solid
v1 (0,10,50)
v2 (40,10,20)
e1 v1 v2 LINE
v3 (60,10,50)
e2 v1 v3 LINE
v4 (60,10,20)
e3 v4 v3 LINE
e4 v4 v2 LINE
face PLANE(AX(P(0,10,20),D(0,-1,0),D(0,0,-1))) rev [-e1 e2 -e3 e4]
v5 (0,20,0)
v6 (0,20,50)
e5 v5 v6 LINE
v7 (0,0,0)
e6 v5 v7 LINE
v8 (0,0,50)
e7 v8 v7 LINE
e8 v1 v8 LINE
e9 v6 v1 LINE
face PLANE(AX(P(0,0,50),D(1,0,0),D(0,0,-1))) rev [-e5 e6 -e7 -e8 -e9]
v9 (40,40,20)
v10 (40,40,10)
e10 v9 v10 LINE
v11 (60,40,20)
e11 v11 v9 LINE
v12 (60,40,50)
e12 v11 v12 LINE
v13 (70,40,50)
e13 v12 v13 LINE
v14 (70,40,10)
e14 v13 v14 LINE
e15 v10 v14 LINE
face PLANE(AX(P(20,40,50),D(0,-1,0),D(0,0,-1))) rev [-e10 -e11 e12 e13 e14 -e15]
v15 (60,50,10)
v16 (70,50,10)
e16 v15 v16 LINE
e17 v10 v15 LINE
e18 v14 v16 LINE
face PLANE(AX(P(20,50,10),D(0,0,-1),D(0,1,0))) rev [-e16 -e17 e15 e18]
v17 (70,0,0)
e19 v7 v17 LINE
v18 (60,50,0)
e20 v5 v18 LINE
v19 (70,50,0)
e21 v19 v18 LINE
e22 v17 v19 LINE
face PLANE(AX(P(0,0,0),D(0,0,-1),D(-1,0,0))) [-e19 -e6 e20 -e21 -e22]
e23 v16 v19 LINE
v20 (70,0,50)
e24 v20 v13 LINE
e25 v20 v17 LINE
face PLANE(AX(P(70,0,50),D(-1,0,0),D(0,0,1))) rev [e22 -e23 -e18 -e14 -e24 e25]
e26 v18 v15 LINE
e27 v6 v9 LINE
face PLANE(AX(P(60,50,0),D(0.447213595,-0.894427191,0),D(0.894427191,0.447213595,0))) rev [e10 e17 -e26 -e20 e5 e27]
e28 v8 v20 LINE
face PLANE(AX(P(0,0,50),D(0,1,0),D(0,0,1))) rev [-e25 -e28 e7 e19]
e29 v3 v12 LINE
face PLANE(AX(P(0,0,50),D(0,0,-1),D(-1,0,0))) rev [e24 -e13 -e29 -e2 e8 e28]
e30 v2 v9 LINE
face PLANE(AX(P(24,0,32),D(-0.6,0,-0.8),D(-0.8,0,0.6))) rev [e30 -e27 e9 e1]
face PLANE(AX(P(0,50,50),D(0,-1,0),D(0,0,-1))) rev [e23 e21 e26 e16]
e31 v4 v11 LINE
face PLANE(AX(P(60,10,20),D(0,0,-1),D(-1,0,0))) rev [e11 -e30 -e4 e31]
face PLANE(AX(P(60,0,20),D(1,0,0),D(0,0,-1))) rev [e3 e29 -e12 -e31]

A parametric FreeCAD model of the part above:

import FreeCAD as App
import Part
import Sketcher
from FreeCAD import Vector


def add_polygon(sketch, points):
    """Adds a closed chain of lines whose ends are joined by coincident constraints."""
    first, n = sketch.GeometryCount, len(points)
    for a, b in zip(points, points[1:] + points[:1]):
        sketch.addGeometry(Part.LineSegment(App.Vector(*a, 0), App.Vector(*b, 0)), False)
    for i in range(n):
        sketch.addConstraint(Sketcher.Constraint("Coincident", first + i, 2, first + (i + 1) % n, 1))

doc = App.newDocument("Part")
body = doc.addObject("PartDesign::Body", "Body")
body.AllowCompound = True

sketch1 = body.newObject("Sketcher::SketchObject", "Sketch")
sketch1.AttachmentSupport = (doc.getObject("XY_Plane"), [""])
sketch1.MapMode = "FlatFace"
add_polygon(sketch1, [(0, 50), (0, 0), (70, 0), (70, 50)])
sketch1.addConstraint(Sketcher.Constraint("Vertical", 0))
sketch1.addConstraint(Sketcher.Constraint("Horizontal", 1))
sketch1.addConstraint(Sketcher.Constraint("Vertical", 2))
sketch1.addConstraint(Sketcher.Constraint("Horizontal", 3))
sketch1.addConstraint(Sketcher.Constraint("Coincident", 0, 2, -1, 1))
sketch1.addConstraint(Sketcher.Constraint("DistanceX", 1, 1, 1, 2, 70.0))
sketch1.addConstraint(Sketcher.Constraint("DistanceY", 0, 2, 0, 1, 50.0))
pad1 = body.newObject("PartDesign::Pad", "Pad")
pad1.Profile = sketch1
pad1.Length = 50

sketch2 = body.newObject("Sketcher::SketchObject", "Sketch001")
sketch2.AttachmentSupport = (doc.getObject("XY_Plane"), [""])
sketch2.MapMode = "FlatFace"
sketch2.AttachmentOffset = App.Placement(Vector(0, 0, 50), App.Rotation())
add_polygon(sketch2, [(60, 50), (0, 50), (0, 20)])
sketch2.addConstraint(Sketcher.Constraint("Horizontal", 0))
sketch2.addConstraint(Sketcher.Constraint("Vertical", 1))
sketch2.addConstraint(Sketcher.Constraint("PointOnObject", 0, 2, -2))
sketch2.addConstraint(Sketcher.Constraint("DistanceX", 0, 2, 0, 1, 60.0))
sketch2.addConstraint(Sketcher.Constraint("DistanceY", 1, 2, 1, 1, 30.0))
sketch2.addConstraint(Sketcher.Constraint("DistanceY", -1, 1, 0, 2, 50.0))
pocket1 = body.newObject("PartDesign::Pocket", "Pocket")
pocket1.Profile = sketch2
pocket1.Length = 50

sketch3 = body.newObject("Sketcher::SketchObject", "Sketch002")
sketch3.AttachmentSupport = (doc.getObject("YZ_Plane"), [""])
sketch3.MapMode = "FlatFace"
sketch3.AttachmentOffset = App.Placement(Vector(0, 0, 70), App.Rotation())
add_polygon(sketch3, [(50, 50), (40, 50), (40, 10), (50, 10)])
sketch3.addConstraint(Sketcher.Constraint("Horizontal", 0))
sketch3.addConstraint(Sketcher.Constraint("Vertical", 1))
sketch3.addConstraint(Sketcher.Constraint("Horizontal", 2))
sketch3.addConstraint(Sketcher.Constraint("Vertical", 3))
sketch3.addConstraint(Sketcher.Constraint("DistanceX", 0, 2, 0, 1, 10.0))
sketch3.addConstraint(Sketcher.Constraint("DistanceY", 1, 2, 1, 1, 40.0))
sketch3.addConstraint(Sketcher.Constraint("DistanceX", -1, 1, 0, 2, 40.0))
sketch3.addConstraint(Sketcher.Constraint("DistanceY", -1, 1, 0, 2, 50.0))
pocket2 = body.newObject("PartDesign::Pocket", "Pocket001")
pocket2.Profile = sketch3
pocket2.Length = 50

sketch4 = body.newObject("Sketcher::SketchObject", "Sketch003")
sketch4.AttachmentSupport = (doc.getObject("XY_Plane"), [""])
sketch4.MapMode = "FlatFace"
sketch4.AttachmentOffset = App.Placement(Vector(0, 0, 50), App.Rotation())
add_polygon(sketch4, [(60, 10), (60, 40), (40, 40), (0, 20), (0, 10)])
sketch4.addConstraint(Sketcher.Constraint("Vertical", 0))
sketch4.addConstraint(Sketcher.Constraint("Horizontal", 1))
sketch4.addConstraint(Sketcher.Constraint("Vertical", 3))
sketch4.addConstraint(Sketcher.Constraint("Horizontal", 4))
sketch4.addConstraint(Sketcher.Constraint("PointOnObject", 2, 2, -2))
sketch4.addConstraint(Sketcher.Constraint("DistanceX", 1, 2, 1, 1, 20.0))
sketch4.addConstraint(Sketcher.Constraint("DistanceX", 4, 1, 4, 2, 60.0))
sketch4.addConstraint(Sketcher.Constraint("DistanceY", 0, 1, 0, 2, 30.0))
sketch4.addConstraint(Sketcher.Constraint("DistanceY", 3, 2, 3, 1, 10.0))
sketch4.addConstraint(Sketcher.Constraint("DistanceY", -1, 1, 0, 2, 40.0))
pocket3 = body.newObject("PartDesign::Pocket", "Pocket002")
pocket3.Profile = sketch4
pocket3.Length = 30

sketch5 = body.newObject("Sketcher::SketchObject", "Sketch004")
sketch5.Placement = App.Placement(Vector(-8, 16, 0), App.Rotation(Vector(0.894427191, 0.447213595, 0), Vector(0, 0, -1), Vector(-0.447213595, 0.894427191, 0), "ZXY"))
add_polygon(sketch5, [(9, -20), (9, -40), (54, -20)])
sketch5.addConstraint(Sketcher.Constraint("Vertical", 0))
sketch5.addConstraint(Sketcher.Constraint("Horizontal", 2))
sketch5.addConstraint(Sketcher.Constraint("DistanceY", 0, 2, 0, 1, 20.0))
sketch5.addConstraint(Sketcher.Constraint("DistanceY", 0, 2, -1, 1, 40.0))
sketch5.addConstraint(Sketcher.Constraint("DistanceX", 2, 2, 2, 1, 44.72136))
sketch5.addConstraint(Sketcher.Constraint("DistanceX", -1, 1, 0, 2, 8.944272))
pad2 = body.newObject("PartDesign::Pad", "Pad001")
pad2.Profile = sketch5
pad2.Length = 30
pad2.Reversed = True

sketch6 = body.newObject("Sketcher::SketchObject", "Sketch005")
sketch6.AttachmentSupport = (doc.getObject("YZ_Plane"), [""])
sketch6.MapMode = "FlatFace"
add_polygon(sketch6, [(20, 20), (10, 20), (10, 40), (20, 40)])
sketch6.addConstraint(Sketcher.Constraint("Horizontal", 0))
sketch6.addConstraint(Sketcher.Constraint("Vertical", 1))
sketch6.addConstraint(Sketcher.Constraint("Horizontal", 2))
sketch6.addConstraint(Sketcher.Constraint("Vertical", 3))
sketch6.addConstraint(Sketcher.Constraint("DistanceX", 0, 2, 0, 1, 10.0))
sketch6.addConstraint(Sketcher.Constraint("DistanceY", 1, 1, 1, 2, 20.0))
sketch6.addConstraint(Sketcher.Constraint("DistanceX", -1, 1, 0, 2, 10.0))
sketch6.addConstraint(Sketcher.Constraint("DistanceY", -1, 1, 0, 2, 20.0))
pad3 = body.newObject("PartDesign::Pad", "Pad002")
pad3.Profile = sketch6
pad3.Length = 5

sketch7 = body.newObject("Sketcher::SketchObject", "Sketch006")
sketch7.AttachmentSupport = (doc.getObject("XZ_Plane"), [""])
sketch7.MapMode = "FlatFace"
add_polygon(sketch7, [(27, 33), (10, 40), (10, 20), (27, 20)])
sketch7.addConstraint(Sketcher.Constraint("Vertical", 1))
sketch7.addConstraint(Sketcher.Constraint("Horizontal", 2))
sketch7.addConstraint(Sketcher.Constraint("Vertical", 3))
sketch7.addConstraint(Sketcher.Constraint("DistanceY", 1, 2, 1, 1, 20.0))
sketch7.addConstraint(Sketcher.Constraint("DistanceX", -1, 1, 0, 2, 10.0))
sketch7.addConstraint(Sketcher.Constraint("DistanceY", -1, 1, 0, 2, 40.0))
sketch7.addConstraint(Sketcher.Constraint("DistanceX", 2, 1, 2, 2, 17.082039))
sketch7.addConstraint(Sketcher.Constraint("Distance", 0, 18.397919))
pocket4 = body.newObject("PartDesign::Pocket", "Pocket003")
pocket4.Profile = sketch7
pocket4.Length = 5
pocket4.Reversed = True

sketch8 = body.newObject("Sketcher::SketchObject", "Sketch007")
sketch8.AttachmentSupport = (doc.getObject("XZ_Plane"), [""])
sketch8.MapMode = "FlatFace"
add_polygon(sketch8, [(70, 0), (70, 50), (0, 50), (0, 0)])
sketch8.addConstraint(Sketcher.Constraint("Vertical", 0))
sketch8.addConstraint(Sketcher.Constraint("Horizontal", 1))
sketch8.addConstraint(Sketcher.Constraint("Vertical", 2))
sketch8.addConstraint(Sketcher.Constraint("Horizontal", 3))
sketch8.addConstraint(Sketcher.Constraint("Coincident", 2, 2, -1, 1))
sketch8.addConstraint(Sketcher.Constraint("DistanceX", 1, 2, 1, 1, 70.0))
sketch8.addConstraint(Sketcher.Constraint("DistanceY", 0, 1, 0, 2, 50.0))
pocket5 = body.newObject("PartDesign::Pocket", "Pocket004")
pocket5.Profile = sketch8
pocket5.Length = 19
pocket5.Reversed = True

sketch9 = body.newObject("Sketcher::SketchObject", "Sketch008")
sketch9.Placement = App.Placement(Vector(14.666667, 7.333333, 36.666667), App.Rotation(Vector(0.930949336, -0.071611487, -0.358057437), Vector(0, 0.980580675, -0.196116135), Vector(0.365148372, 0.182574186, 0.912870929), "ZXY"))
add_polygon(sketch9, [(-10, 12), (-16, 12), (-17, 4), (-10, 2)])
sketch9.addConstraint(Sketcher.Constraint("Vertical", 3))
sketch9.addConstraint(Sketcher.Constraint("DistanceY", 3, 1, 3, 2, 10.198039))
sketch9.addConstraint(Sketcher.Constraint("DistanceY", -1, 1, 3, 2, 12.1592))
sketch9.addConstraint(Sketcher.Constraint("Distance", 1, 8.191788))
sketch9.addConstraint(Sketcher.Constraint("DistanceY", -1, 1, 0, 2, 11.766968))
sketch9.addConstraint(Sketcher.Constraint("DistanceX", 1, 2, -1, 1, 16.527762))
sketch9.addConstraint(Sketcher.Constraint("DistanceX", 0, 2, 2, 2, 5.370862))
sketch9.addConstraint(Sketcher.Constraint("Distance", 2, 6.361948))
pocket6 = body.newObject("PartDesign::Pocket", "Pocket005")
pocket6.Profile = sketch9
pocket6.Length = 19
pocket6.Reversed = True

sketch10 = body.newObject("Sketcher::SketchObject", "Sketch009")
sketch10.Placement = App.Placement(Vector(20, 0, 40), App.Rotation(Vector(0.894427191, 0, -0.447213595), Vector(0, 1, 0), Vector(0.447213595, 0, 0.894427191), "ZXY"))
add_polygon(sketch10, [(-22, 40), (-22, 10), (45, 10), (45, 40)])
sketch10.addConstraint(Sketcher.Constraint("Vertical", 0))
sketch10.addConstraint(Sketcher.Constraint("Horizontal", 1))
sketch10.addConstraint(Sketcher.Constraint("Vertical", 2))
sketch10.addConstraint(Sketcher.Constraint("Horizontal", 3))
sketch10.addConstraint(Sketcher.Constraint("DistanceY", 0, 2, 0, 1, 30.0))
sketch10.addConstraint(Sketcher.Constraint("DistanceY", -1, 1, 0, 2, 10.0))
sketch10.addConstraint(Sketcher.Constraint("DistanceX", 1, 1, 1, 2, 67.082039))
sketch10.addConstraint(Sketcher.Constraint("DistanceX", 0, 2, -1, 1, 22.36068))
pad4 = body.newObject("PartDesign::Pad", "Pad003")
pad4.Profile = sketch10
pad4.Length = 10
pad4.Reversed = True

sketch11 = body.newObject("Sketcher::SketchObject", "Sketch010")
sketch11.AttachmentSupport = (doc.getObject("YZ_Plane"), [""])
sketch11.MapMode = "FlatFace"
add_polygon(sketch11, [(20, 0), (0, 0), (0, 50), (20, 50)])
sketch11.addConstraint(Sketcher.Constraint("Horizontal", 0))
sketch11.addConstraint(Sketcher.Constraint("Vertical", 1))
sketch11.addConstraint(Sketcher.Constraint("Horizontal", 2))
sketch11.addConstraint(Sketcher.Constraint("Vertical", 3))
sketch11.addConstraint(Sketcher.Constraint("Coincident", 0, 2, -1, 1))
sketch11.addConstraint(Sketcher.Constraint("DistanceX", 0, 2, 0, 1, 20.0))
sketch11.addConstraint(Sketcher.Constraint("DistanceY", 1, 1, 1, 2, 50.0))
pocket7 = body.newObject("PartDesign::Pocket", "Pocket006")
pocket7.Profile = sketch11
pocket7.Length = 10

sketch12 = body.newObject("Sketcher::SketchObject", "Sketch011")
sketch12.Placement = App.Placement(Vector(-8, 16, 0), App.Rotation(Vector(0.894427191, 0.447213595, 0), Vector(0, 0, -1), Vector(-0.447213595, 0.894427191, 0), "ZXY"))
add_polygon(sketch12, [(9, 0), (9, -77), (54, -77), (54, 0)])
sketch12.addConstraint(Sketcher.Constraint("Vertical", 0))
sketch12.addConstraint(Sketcher.Constraint("Horizontal", 1))
sketch12.addConstraint(Sketcher.Constraint("Vertical", 2))
sketch12.addConstraint(Sketcher.Constraint("Horizontal", 3))
sketch12.addConstraint(Sketcher.Constraint("PointOnObject", 2, 2, -1))
sketch12.addConstraint(Sketcher.Constraint("DistanceX", 1, 1, 1, 2, 45.0))
sketch12.addConstraint(Sketcher.Constraint("DistanceY", 0, 2, 0, 1, 76.778693))
sketch12.addConstraint(Sketcher.Constraint("DistanceX", -1, 1, 0, 2, 8.944272))
pocket8 = body.newObject("PartDesign::Pocket", "Pocket007")
pocket8.Profile = sketch12
pocket8.Length = 28
pocket8.Reversed = True

sketch13 = body.newObject("Sketcher::SketchObject", "Sketch012")
sketch13.Placement = App.Placement(Vector(8, 4, 0), App.Rotation(Vector(0, 0, -1), Vector(-0.447213595, 0.894427191, 0), Vector(0.894427191, 0.447213595, 0), "ZXY"))
add_polygon(sketch13, [(-50, 18), (-39, 18), (-41, 28)])
sketch13.addConstraint(Sketcher.Constraint("Horizontal", 0))
sketch13.addConstraint(Sketcher.Constraint("DistanceX", 2, 2, -1, 1, 50.0))
sketch13.addConstraint(Sketcher.Constraint("DistanceY", 0, 2, 1, 2, 10.0))
sketch13.addConstraint(Sketcher.Constraint("DistanceX", 0, 1, 0, 2, 11.18034))
sketch13.addConstraint(Sketcher.Constraint("Distance", 1, 10.246951))
sketch13.addConstraint(Sketcher.Constraint("DistanceY", -1, 1, 0, 2, 17.888544))
pocket9 = body.newObject("PartDesign::Pocket", "Pocket008")
pocket9.Profile = sketch13
pocket9.Length = 28

sketch14 = body.newObject("Sketcher::SketchObject", "Sketch013")
sketch14.AttachmentSupport = (doc.getObject("XZ_Plane"), [""])
sketch14.MapMode = "FlatFace"
sketch14.AttachmentOffset = App.Placement(Vector(0, 0, -40), App.Rotation())
add_polygon(sketch14, [(40, 20), (40, 30), (60, 30), (60, 20)])
sketch14.addConstraint(Sketcher.Constraint("Vertical", 0))
sketch14.addConstraint(Sketcher.Constraint("Horizontal", 1))
sketch14.addConstraint(Sketcher.Constraint("Vertical", 2))
sketch14.addConstraint(Sketcher.Constraint("Horizontal", 3))
sketch14.addConstraint(Sketcher.Constraint("DistanceX", 1, 1, 1, 2, 20.0))
sketch14.addConstraint(Sketcher.Constraint("DistanceY", 0, 1, 0, 2, 10.0))
sketch14.addConstraint(Sketcher.Constraint("DistanceX", -1, 1, 0, 2, 40.0))
sketch14.addConstraint(Sketcher.Constraint("DistanceY", -1, 1, 0, 2, 30.0))
pocket10 = body.newObject("PartDesign::Pocket", "Pocket009")
pocket10.Profile = sketch14
pocket10.Length = 30
pocket10.Reversed = True

sketch15 = body.newObject("Sketcher::SketchObject", "Sketch014")
sketch15.Placement = App.Placement(Vector(24, 0, 32), App.Rotation(Vector(0.8, 0, -0.6), Vector(0, 1, 0), Vector(0.6, 0, 0.8), "ZXY"))
add_polygon(sketch15, [(20, 40), (-30, 20), (-30, 10), (20, 10)])
sketch15.addConstraint(Sketcher.Constraint("Vertical", 1))
sketch15.addConstraint(Sketcher.Constraint("Horizontal", 2))
sketch15.addConstraint(Sketcher.Constraint("Vertical", 3))
sketch15.addConstraint(Sketcher.Constraint("DistanceX", 2, 1, 2, 2, 50.0))
sketch15.addConstraint(Sketcher.Constraint("DistanceY", 1, 2, 1, 1, 10.0))
sketch15.addConstraint(Sketcher.Constraint("DistanceY", 3, 1, 3, 2, 30.0))
sketch15.addConstraint(Sketcher.Constraint("DistanceX", 0, 2, -1, 1, 30.0))
sketch15.addConstraint(Sketcher.Constraint("DistanceY", -1, 1, 0, 2, 20.0))
pocket11 = body.newObject("PartDesign::Pocket", "Pocket010")
pocket11.Profile = sketch15
pocket11.Length = 10
pocket11.Reversed = True

sketch16 = body.newObject("Sketcher::SketchObject", "Sketch015")
sketch16.Placement = App.Placement(Vector(-8.827586, 27.586207, 6.62069), App.Rotation(Vector(0.954842468, 0.288908462, 0.069338031), Vector(0, -0.233372953, 0.972387302), Vector(0.297112541, -0.928476691, -0.222834406), "ZXY"))
add_polygon(sketch16, [(51, 10), (51, 20), (9, 44)])
sketch16.addConstraint(Sketcher.Constraint("Vertical", 0))
sketch16.addConstraint(Sketcher.Constraint("DistanceY", 0, 1, 0, 2, 10.283968))
sketch16.addConstraint(Sketcher.Constraint("Distance", 2, 53.851648))
sketch16.addConstraint(Sketcher.Constraint("DistanceX", -1, 1, 1, 2, 9.245071))
sketch16.addConstraint(Sketcher.Constraint("DistanceY", 0, 2, 1, 2, 23.55511))
sketch16.addConstraint(Sketcher.Constraint("DistanceY", -1, 1, 0, 2, 20.396796))
pocket12 = body.newObject("PartDesign::Pocket", "Pocket011")
pocket12.Profile = sketch16
pocket12.Length = 10

sketch17 = body.newObject("Sketcher::SketchObject", "Sketch016")
sketch17.AttachmentSupport = (doc.getObject("YZ_Plane"), [""])
sketch17.MapMode = "FlatFace"
sketch17.AttachmentOffset = App.Placement(Vector(0, 0, 40), App.Rotation())
add_polygon(sketch17, [(40, 20), (40, 30), (37.6, 30)])
sketch17.addConstraint(Sketcher.Constraint("Vertical", 0))
sketch17.addConstraint(Sketcher.Constraint("Horizontal", 1))
sketch17.addConstraint(Sketcher.Constraint("DistanceY", 0, 1, 0, 2, 10.0))
sketch17.addConstraint(Sketcher.Constraint("DistanceX", 1, 2, 1, 1, 2.4))
sketch17.addConstraint(Sketcher.Constraint("DistanceX", -1, 1, 0, 2, 40.0))
sketch17.addConstraint(Sketcher.Constraint("DistanceY", -1, 1, 0, 2, 30.0))
pocket13 = body.newObject("PartDesign::Pocket", "Pocket012")
pocket13.Profile = sketch17
pocket13.Length = 10

sketch18 = body.newObject("Sketcher::SketchObject", "Sketch017")
sketch18.Placement = App.Placement(Vector(20, 0, 40), App.Rotation(Vector(0.894427191, 0, -0.447213595), Vector(0, 1, 0), Vector(0.447213595, 0, 0.894427191), "ZXY"))
add_polygon(sketch18, [(22.4, 40), (21.6, 39.7), (22.4, 37.6)])
sketch18.addConstraint(Sketcher.Constraint("Vertical", 2))
sketch18.addConstraint(Sketcher.Constraint("DistanceY", 2, 1, 2, 2, 2.4))
sketch18.addConstraint(Sketcher.Constraint("DistanceY", -1, 1, 2, 2, 40.0))
sketch18.addConstraint(Sketcher.Constraint("DistanceX", -1, 1, 1, 2, 22.36068))
sketch18.addConstraint(Sketcher.Constraint("Distance", 0, 0.797663))
sketch18.addConstraint(Sketcher.Constraint("Distance", 1, 2.198448))
pocket14 = body.newObject("PartDesign::Pocket", "Pocket013")
pocket14.Profile = sketch18
pocket14.Length = 5

doc.recompute()
